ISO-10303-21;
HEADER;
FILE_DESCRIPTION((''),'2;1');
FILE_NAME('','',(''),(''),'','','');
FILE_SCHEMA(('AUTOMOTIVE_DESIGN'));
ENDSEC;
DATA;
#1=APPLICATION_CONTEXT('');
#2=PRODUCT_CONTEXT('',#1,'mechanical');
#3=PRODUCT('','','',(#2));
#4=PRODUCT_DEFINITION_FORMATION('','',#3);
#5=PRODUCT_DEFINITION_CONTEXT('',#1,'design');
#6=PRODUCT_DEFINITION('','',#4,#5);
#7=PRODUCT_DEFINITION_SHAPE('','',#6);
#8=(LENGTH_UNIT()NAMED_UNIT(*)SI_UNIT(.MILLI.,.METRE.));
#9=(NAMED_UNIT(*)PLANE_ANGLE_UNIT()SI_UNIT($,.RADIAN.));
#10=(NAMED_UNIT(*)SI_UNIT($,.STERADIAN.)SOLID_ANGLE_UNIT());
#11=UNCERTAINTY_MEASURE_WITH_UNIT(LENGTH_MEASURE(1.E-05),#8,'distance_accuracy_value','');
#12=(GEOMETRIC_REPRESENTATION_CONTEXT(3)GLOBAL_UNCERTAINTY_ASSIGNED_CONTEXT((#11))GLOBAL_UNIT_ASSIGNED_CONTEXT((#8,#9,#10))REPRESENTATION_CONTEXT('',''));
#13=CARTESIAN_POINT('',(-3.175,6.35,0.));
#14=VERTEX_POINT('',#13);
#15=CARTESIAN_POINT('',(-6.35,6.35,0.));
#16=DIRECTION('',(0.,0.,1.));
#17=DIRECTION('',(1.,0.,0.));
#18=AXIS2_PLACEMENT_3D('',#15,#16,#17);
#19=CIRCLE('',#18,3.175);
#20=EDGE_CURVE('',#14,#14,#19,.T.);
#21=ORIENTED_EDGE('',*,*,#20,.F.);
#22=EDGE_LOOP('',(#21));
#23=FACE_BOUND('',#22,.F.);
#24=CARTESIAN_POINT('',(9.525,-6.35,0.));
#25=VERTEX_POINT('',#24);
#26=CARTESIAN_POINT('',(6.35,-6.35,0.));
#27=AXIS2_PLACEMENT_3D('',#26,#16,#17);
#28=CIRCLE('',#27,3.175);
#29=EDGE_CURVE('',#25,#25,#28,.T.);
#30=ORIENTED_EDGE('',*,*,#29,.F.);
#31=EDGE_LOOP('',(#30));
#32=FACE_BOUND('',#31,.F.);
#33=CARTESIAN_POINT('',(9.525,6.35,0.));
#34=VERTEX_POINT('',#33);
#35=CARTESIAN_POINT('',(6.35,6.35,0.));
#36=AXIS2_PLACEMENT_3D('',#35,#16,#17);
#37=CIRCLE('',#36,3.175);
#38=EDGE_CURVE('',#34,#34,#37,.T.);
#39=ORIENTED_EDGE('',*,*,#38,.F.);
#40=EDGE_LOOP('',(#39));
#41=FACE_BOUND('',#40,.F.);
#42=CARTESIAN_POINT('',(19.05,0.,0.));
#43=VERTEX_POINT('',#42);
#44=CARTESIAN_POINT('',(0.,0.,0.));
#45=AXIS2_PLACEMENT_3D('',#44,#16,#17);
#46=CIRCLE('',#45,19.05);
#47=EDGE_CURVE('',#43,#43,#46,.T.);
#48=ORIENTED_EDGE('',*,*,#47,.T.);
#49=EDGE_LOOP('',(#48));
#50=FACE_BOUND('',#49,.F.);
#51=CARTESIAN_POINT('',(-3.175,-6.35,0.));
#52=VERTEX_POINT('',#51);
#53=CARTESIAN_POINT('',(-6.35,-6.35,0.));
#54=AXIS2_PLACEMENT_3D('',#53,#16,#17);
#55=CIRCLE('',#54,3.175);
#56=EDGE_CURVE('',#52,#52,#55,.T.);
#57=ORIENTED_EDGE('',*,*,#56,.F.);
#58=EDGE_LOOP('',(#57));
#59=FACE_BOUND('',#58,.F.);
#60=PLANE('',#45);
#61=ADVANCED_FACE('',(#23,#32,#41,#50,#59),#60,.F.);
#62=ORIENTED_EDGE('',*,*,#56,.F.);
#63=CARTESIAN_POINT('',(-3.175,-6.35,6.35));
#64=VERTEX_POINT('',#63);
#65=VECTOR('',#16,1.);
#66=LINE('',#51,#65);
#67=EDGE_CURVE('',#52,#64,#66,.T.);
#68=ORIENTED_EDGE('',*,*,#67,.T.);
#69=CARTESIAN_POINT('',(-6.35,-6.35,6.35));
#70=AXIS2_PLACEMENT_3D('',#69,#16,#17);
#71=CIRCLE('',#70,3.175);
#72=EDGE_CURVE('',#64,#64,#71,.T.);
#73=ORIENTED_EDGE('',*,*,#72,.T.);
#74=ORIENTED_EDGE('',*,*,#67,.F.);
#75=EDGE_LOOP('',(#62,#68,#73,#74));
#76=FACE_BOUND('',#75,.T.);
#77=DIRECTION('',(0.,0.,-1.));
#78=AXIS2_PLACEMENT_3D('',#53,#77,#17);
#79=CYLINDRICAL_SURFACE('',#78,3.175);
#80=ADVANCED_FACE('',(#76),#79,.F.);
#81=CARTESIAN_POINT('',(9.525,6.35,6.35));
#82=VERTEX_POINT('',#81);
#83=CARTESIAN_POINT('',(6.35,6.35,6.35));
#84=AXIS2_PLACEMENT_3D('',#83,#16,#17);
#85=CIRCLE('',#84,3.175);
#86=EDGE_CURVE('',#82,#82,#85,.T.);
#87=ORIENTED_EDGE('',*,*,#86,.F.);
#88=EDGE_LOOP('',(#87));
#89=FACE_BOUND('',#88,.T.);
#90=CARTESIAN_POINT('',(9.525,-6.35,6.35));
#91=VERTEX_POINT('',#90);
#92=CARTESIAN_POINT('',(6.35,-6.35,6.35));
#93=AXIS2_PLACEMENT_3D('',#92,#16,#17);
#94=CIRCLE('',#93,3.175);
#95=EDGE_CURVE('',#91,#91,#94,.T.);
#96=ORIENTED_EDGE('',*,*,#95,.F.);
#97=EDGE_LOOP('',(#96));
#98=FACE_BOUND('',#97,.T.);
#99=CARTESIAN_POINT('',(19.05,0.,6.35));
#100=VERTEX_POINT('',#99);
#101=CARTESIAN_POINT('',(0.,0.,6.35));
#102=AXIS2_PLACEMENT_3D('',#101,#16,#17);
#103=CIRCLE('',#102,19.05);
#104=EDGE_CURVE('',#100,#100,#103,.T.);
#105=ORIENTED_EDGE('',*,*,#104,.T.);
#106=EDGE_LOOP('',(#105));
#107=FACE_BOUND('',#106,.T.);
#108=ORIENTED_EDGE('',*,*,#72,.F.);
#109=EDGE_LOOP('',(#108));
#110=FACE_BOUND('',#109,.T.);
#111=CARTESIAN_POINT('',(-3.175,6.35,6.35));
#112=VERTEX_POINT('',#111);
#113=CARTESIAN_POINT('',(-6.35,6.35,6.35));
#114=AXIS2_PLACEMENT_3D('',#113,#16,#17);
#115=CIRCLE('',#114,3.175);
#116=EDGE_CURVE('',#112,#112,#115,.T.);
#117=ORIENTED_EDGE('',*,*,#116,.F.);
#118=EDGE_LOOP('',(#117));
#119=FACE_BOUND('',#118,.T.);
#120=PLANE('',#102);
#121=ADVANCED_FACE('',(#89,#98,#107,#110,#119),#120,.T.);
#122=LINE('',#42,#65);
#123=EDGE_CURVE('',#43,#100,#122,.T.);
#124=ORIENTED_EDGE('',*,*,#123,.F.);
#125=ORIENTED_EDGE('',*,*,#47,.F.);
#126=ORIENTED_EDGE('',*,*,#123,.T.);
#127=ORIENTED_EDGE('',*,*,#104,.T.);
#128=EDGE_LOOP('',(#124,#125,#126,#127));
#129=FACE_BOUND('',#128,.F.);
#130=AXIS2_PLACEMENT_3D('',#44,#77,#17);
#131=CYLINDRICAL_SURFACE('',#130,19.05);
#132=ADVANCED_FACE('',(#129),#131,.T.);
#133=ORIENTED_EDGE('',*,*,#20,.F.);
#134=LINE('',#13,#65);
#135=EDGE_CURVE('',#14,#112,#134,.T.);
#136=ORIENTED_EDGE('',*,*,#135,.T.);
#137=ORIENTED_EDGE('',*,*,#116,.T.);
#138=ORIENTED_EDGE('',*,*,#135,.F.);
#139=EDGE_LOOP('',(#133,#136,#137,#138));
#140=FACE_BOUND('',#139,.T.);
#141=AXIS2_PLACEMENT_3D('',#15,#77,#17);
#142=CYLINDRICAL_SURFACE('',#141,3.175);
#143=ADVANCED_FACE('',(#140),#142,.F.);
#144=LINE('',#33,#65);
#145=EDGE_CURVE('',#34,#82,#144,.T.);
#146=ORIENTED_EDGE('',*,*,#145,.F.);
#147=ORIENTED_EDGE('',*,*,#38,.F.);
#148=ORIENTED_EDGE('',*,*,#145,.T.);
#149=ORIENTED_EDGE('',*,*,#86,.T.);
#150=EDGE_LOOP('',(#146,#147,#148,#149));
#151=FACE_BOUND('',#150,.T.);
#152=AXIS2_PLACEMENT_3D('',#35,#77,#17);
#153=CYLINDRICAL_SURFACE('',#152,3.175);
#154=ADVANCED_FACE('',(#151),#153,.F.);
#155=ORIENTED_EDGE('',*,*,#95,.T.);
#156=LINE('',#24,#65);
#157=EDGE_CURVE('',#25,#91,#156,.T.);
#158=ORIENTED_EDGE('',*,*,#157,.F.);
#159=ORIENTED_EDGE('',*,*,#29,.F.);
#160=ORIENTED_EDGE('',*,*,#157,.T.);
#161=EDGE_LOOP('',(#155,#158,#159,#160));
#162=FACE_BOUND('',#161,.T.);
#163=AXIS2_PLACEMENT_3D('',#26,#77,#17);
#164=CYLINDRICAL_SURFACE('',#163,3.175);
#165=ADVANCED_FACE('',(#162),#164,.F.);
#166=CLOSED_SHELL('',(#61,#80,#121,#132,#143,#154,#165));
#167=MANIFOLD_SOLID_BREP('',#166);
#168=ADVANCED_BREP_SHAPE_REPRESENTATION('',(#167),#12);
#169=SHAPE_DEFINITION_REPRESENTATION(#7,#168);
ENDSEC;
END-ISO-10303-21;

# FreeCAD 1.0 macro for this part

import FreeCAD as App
import Part
import Sketcher
Q = App.Units.Quantity

doc = App.newDocument("Part")
body = doc.addObject("PartDesign::Body", "Body")

sketch1 = body.newObject("Sketcher::SketchObject", "Sketch")
sketch1.AttachmentSupport = (doc.getObject("XY_Plane"), [""])
sketch1.MapMode = "FlatFace"
sketch1.addGeometry([
    Part.Circle(App.Vector(0, 0, 0), App.Vector(0, 0, 1), 19.1),
    Part.Circle(App.Vector(-6.3, -6.3, 0), App.Vector(0, 0, 1), 3.2),
    Part.Circle(App.Vector(6.3, -6.3, 0), App.Vector(0, 0, 1), 3.2),
    Part.Circle(App.Vector(-6.3, 6.3, 0), App.Vector(0, 0, 1), 3.2),
    Part.Circle(App.Vector(6.3, 6.3, 0), App.Vector(0, 0, 1), 3.2),
], False)
sketch1.addConstraint([
    Sketcher.Constraint("Coincident", 0, 3, -1, 1),
    Sketcher.Constraint("Equal", 1, 2),
    Sketcher.Constraint("Equal", 2, 3),
    Sketcher.Constraint("Equal", 3, 4),
    Sketcher.Constraint("Symmetric", 2, 3, 3, 3, -1, 1),
    Sketcher.Constraint("Symmetric", 1, 3, 4, 3, -1, 1),
    Sketcher.Constraint("Symmetric", 1, 3, 2, 3, -2),
    Sketcher.Constraint("Diameter", 0, Q("1.5 in")),
    Sketcher.Constraint("Diameter", 1, Q("0.25 in")),
    Sketcher.Constraint("DistanceX", 1, 3, -1, 1, Q("0.25 in")),
    Sketcher.Constraint("DistanceY", 1, 3, -1, 1, Q("0.25 in")),
])
pad1 = body.newObject("PartDesign::Pad", "Pad")
pad1.Profile = sketch1
pad1.Length = Q("0.25 in")

doc.recompute()
